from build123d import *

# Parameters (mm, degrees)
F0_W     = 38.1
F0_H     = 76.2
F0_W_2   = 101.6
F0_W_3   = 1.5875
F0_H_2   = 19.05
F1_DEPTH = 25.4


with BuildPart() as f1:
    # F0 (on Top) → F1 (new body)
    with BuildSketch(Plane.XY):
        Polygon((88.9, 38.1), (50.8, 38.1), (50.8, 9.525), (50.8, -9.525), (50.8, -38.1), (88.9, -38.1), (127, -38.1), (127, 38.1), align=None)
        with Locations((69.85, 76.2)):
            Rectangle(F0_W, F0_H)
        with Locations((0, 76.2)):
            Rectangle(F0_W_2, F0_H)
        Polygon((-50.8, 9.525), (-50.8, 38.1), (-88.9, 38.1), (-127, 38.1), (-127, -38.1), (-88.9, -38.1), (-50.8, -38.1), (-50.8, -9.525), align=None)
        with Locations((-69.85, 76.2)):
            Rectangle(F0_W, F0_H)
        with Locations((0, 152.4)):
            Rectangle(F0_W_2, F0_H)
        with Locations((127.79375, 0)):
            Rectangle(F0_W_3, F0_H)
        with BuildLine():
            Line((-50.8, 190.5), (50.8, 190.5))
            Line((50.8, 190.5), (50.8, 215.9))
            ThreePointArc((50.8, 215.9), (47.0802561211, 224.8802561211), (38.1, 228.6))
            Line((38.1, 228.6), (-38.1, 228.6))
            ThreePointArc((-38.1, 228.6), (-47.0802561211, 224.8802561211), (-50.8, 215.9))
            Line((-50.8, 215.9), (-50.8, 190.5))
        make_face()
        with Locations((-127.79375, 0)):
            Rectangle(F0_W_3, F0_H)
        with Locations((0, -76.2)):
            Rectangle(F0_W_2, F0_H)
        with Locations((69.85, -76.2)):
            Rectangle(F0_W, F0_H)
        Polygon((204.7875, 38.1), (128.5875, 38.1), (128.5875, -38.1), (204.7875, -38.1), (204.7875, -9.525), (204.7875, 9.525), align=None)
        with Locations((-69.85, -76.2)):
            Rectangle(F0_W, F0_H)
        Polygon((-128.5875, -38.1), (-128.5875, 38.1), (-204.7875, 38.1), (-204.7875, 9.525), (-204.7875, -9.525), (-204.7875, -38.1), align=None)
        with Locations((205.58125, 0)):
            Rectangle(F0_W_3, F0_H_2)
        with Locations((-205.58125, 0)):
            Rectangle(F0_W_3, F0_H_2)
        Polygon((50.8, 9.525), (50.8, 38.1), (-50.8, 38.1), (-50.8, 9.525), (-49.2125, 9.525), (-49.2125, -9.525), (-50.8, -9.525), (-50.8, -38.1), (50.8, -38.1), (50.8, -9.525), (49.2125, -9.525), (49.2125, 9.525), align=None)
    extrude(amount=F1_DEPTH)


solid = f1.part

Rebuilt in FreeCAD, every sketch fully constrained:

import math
import FreeCAD as App
import Part
import Sketcher

V = App.Vector
Q = App.Units.Quantity

doc = App.newDocument("Part")
body = doc.addObject("PartDesign::Body", "Body")

# Sketch on XY plane
sketch1 = doc.addObject("Sketcher::SketchObject", "Sketch")
body.addObject(sketch1)
sketch1.AttachmentSupport = (doc.XY_Plane, [""])
sketch1.MapMode = "FlatFace"
sketch1.addGeometry(Part.LineSegment(V(-88.9, -38.1, 0), V(-88.9, -114.3, 0)), False)
sketch1.addGeometry(Part.LineSegment(V(-88.9, -114.3, 0), V(88.9, -114.3, 0)), False)
sketch1.addGeometry(Part.LineSegment(V(88.9, -114.3, 0), V(88.9, -38.1, 0)), False)
sketch1.addGeometry(Part.LineSegment(V(88.9, -38.1, 0), V(204.8, -38.1, 0)), False)
sketch1.addGeometry(Part.LineSegment(V(204.8, -38.1, 0), V(204.8, -9.5, 0)), False)
sketch1.addGeometry(Part.LineSegment(V(204.8, -9.5, 0), V(206.4, -9.5, 0)), False)
sketch1.addGeometry(Part.LineSegment(V(206.4, -9.5, 0), V(206.4, 9.5, 0)), False)
sketch1.addGeometry(Part.LineSegment(V(206.4, 9.5, 0), V(204.8, 9.5, 0)), False)
sketch1.addGeometry(Part.LineSegment(V(204.8, 9.5, 0), V(204.8, 38.1, 0)), False)
sketch1.addGeometry(Part.LineSegment(V(204.8, 38.1, 0), V(88.9, 38.1, 0)), False)
sketch1.addGeometry(Part.LineSegment(V(88.9, 38.1, 0), V(88.9, 114.3, 0)), False)
sketch1.addGeometry(Part.LineSegment(V(88.9, 114.3, 0), V(50.8, 114.3, 0)), False)
sketch1.addGeometry(Part.LineSegment(V(50.8, 114.3, 0), V(50.8, 215.9, 0)), False)
sketch1.addGeometry(Part.ArcOfCircle(Part.Circle(V(38.1, 215.9, 0), V(0, 0, 1), 12.7), math.radians(0), math.radians(90)), False)
sketch1.addGeometry(Part.LineSegment(V(38.1, 228.6, 0), V(-38.1, 228.6, 0)), False)
sketch1.addGeometry(Part.ArcOfCircle(Part.Circle(V(-38.1, 215.9, 0), V(0, 0, 1), 12.7), math.radians(90), math.radians(180)), False)
sketch1.addGeometry(Part.LineSegment(V(-50.8, 215.9, 0), V(-50.8, 114.3, 0)), False)
sketch1.addGeometry(Part.LineSegment(V(-50.8, 114.3, 0), V(-88.9, 114.3, 0)), False)
sketch1.addGeometry(Part.LineSegment(V(-88.9, 114.3, 0), V(-88.9, 38.1, 0)), False)
sketch1.addGeometry(Part.LineSegment(V(-88.9, 38.1, 0), V(-204.8, 38.1, 0)), False)
sketch1.addGeometry(Part.LineSegment(V(-204.8, 38.1, 0), V(-204.8, 9.5, 0)), False)
sketch1.addGeometry(Part.LineSegment(V(-204.8, 9.5, 0), V(-206.4, 9.5, 0)), False)
sketch1.addGeometry(Part.LineSegment(V(-206.4, 9.5, 0), V(-206.4, -9.5, 0)), False)
sketch1.addGeometry(Part.LineSegment(V(-206.4, -9.5, 0), V(-204.8, -9.5, 0)), False)
sketch1.addGeometry(Part.LineSegment(V(-204.8, -9.5, 0), V(-204.8, -38.1, 0)), False)
sketch1.addGeometry(Part.LineSegment(V(-204.8, -38.1, 0), V(-88.9, -38.1, 0)), False)
sketch1.addGeometry(Part.LineSegment(V(-50.8, -9.5, 0), V(-50.8, 9.5, 0)), False)
sketch1.addGeometry(Part.LineSegment(V(-50.8, 9.5, 0), V(-49.2, 9.5, 0)), False)
sketch1.addGeometry(Part.LineSegment(V(-49.2, 9.5, 0), V(-49.2, -9.5, 0)), False)
sketch1.addGeometry(Part.LineSegment(V(-49.2, -9.5, 0), V(-50.8, -9.5, 0)), False)
sketch1.addGeometry(Part.LineSegment(V(50.8, 9.5, 0), V(50.8, -9.5, 0)), False)
sketch1.addGeometry(Part.LineSegment(V(50.8, -9.5, 0), V(49.2, -9.5, 0)), False)
sketch1.addGeometry(Part.LineSegment(V(49.2, -9.5, 0), V(49.2, 9.5, 0)), False)
sketch1.addGeometry(Part.LineSegment(V(49.2, 9.5, 0), V(50.8, 9.5, 0)), False)
sketch1.addConstraint(Sketcher.Constraint("Coincident", 0, 2, 1, 1))
sketch1.addConstraint(Sketcher.Constraint("Coincident", 1, 2, 2, 1))
sketch1.addConstraint(Sketcher.Constraint("Coincident", 2, 2, 3, 1))
sketch1.addConstraint(Sketcher.Constraint("Coincident", 3, 2, 4, 1))
sketch1.addConstraint(Sketcher.Constraint("Coincident", 4, 2, 5, 1))
sketch1.addConstraint(Sketcher.Constraint("Coincident", 5, 2, 6, 1))
sketch1.addConstraint(Sketcher.Constraint("Coincident", 6, 2, 7, 1))
sketch1.addConstraint(Sketcher.Constraint("Coincident", 7, 2, 8, 1))
sketch1.addConstraint(Sketcher.Constraint("Coincident", 8, 2, 9, 1))
sketch1.addConstraint(Sketcher.Constraint("Coincident", 9, 2, 10, 1))
sketch1.addConstraint(Sketcher.Constraint("Coincident", 10, 2, 11, 1))
sketch1.addConstraint(Sketcher.Constraint("Coincident", 11, 2, 12, 1))
sketch1.addConstraint(Sketcher.Constraint("Tangent", 12, 2, 13, 1))
sketch1.addConstraint(Sketcher.Constraint("Tangent", 13, 2, 14, 1))
sketch1.addConstraint(Sketcher.Constraint("Tangent", 14, 2, 15, 1))
sketch1.addConstraint(Sketcher.Constraint("Tangent", 15, 2, 16, 1))
sketch1.addConstraint(Sketcher.Constraint("Coincident", 16, 2, 17, 1))
sketch1.addConstraint(Sketcher.Constraint("Coincident", 17, 2, 18, 1))
sketch1.addConstraint(Sketcher.Constraint("Coincident", 18, 2, 19, 1))
sketch1.addConstraint(Sketcher.Constraint("Coincident", 19, 2, 20, 1))
sketch1.addConstraint(Sketcher.Constraint("Coincident", 20, 2, 21, 1))
sketch1.addConstraint(Sketcher.Constraint("Coincident", 21, 2, 22, 1))
sketch1.addConstraint(Sketcher.Constraint("Coincident", 22, 2, 23, 1))
sketch1.addConstraint(Sketcher.Constraint("Coincident", 23, 2, 24, 1))
sketch1.addConstraint(Sketcher.Constraint("Coincident", 24, 2, 25, 1))
sketch1.addConstraint(Sketcher.Constraint("Coincident", 25, 2, 0, 1))
sketch1.addConstraint(Sketcher.Constraint("Coincident", 26, 2, 27, 1))
sketch1.addConstraint(Sketcher.Constraint("Coincident", 27, 2, 28, 1))
sketch1.addConstraint(Sketcher.Constraint("Coincident", 28, 2, 29, 1))
sketch1.addConstraint(Sketcher.Constraint("Coincident", 29, 2, 26, 1))
sketch1.addConstraint(Sketcher.Constraint("Coincident", 30, 2, 31, 1))
sketch1.addConstraint(Sketcher.Constraint("Coincident", 31, 2, 32, 1))
sketch1.addConstraint(Sketcher.Constraint("Coincident", 32, 2, 33, 1))
sketch1.addConstraint(Sketcher.Constraint("Coincident", 33, 2, 30, 1))
sketch1.addConstraint(Sketcher.Constraint("Vertical", 0))
sketch1.addConstraint(Sketcher.Constraint("Horizontal", 1))
sketch1.addConstraint(Sketcher.Constraint("Vertical", 2))
sketch1.addConstraint(Sketcher.Constraint("Horizontal", 3))
sketch1.addConstraint(Sketcher.Constraint("Vertical", 4))
sketch1.addConstraint(Sketcher.Constraint("Horizontal", 5))
sketch1.addConstraint(Sketcher.Constraint("Vertical", 6))
sketch1.addConstraint(Sketcher.Constraint("Horizontal", 7))
sketch1.addConstraint(Sketcher.Constraint("Vertical", 8))
sketch1.addConstraint(Sketcher.Constraint("Horizontal", 9))
sketch1.addConstraint(Sketcher.Constraint("Vertical", 10))
sketch1.addConstraint(Sketcher.Constraint("Horizontal", 11))
sketch1.addConstraint(Sketcher.Constraint("Vertical", 12))
sketch1.addConstraint(Sketcher.Constraint("Horizontal", 14))
sketch1.addConstraint(Sketcher.Constraint("Vertical", 16))
sketch1.addConstraint(Sketcher.Constraint("Horizontal", 17))
sketch1.addConstraint(Sketcher.Constraint("Vertical", 18))
sketch1.addConstraint(Sketcher.Constraint("Horizontal", 19))
sketch1.addConstraint(Sketcher.Constraint("Vertical", 20))
sketch1.addConstraint(Sketcher.Constraint("Horizontal", 21))
sketch1.addConstraint(Sketcher.Constraint("Vertical", 22))
sketch1.addConstraint(Sketcher.Constraint("Horizontal", 23))
sketch1.addConstraint(Sketcher.Constraint("Vertical", 24))
sketch1.addConstraint(Sketcher.Constraint("Horizontal", 25))
sketch1.addConstraint(Sketcher.Constraint("Vertical", 26))
sketch1.addConstraint(Sketcher.Constraint("Horizontal", 27))
sketch1.addConstraint(Sketcher.Constraint("Vertical", 28))
sketch1.addConstraint(Sketcher.Constraint("Horizontal", 29))
sketch1.addConstraint(Sketcher.Constraint("Vertical", 30))
sketch1.addConstraint(Sketcher.Constraint("Horizontal", 31))
sketch1.addConstraint(Sketcher.Constraint("Vertical", 32))
sketch1.addConstraint(Sketcher.Constraint("Horizontal", 33))
sketch1.addConstraint(Sketcher.Constraint("Equal", 13, 15))
sketch1.addConstraint(Sketcher.Constraint("Symmetric", 0, 2, 10, 2, -1, 1))
sketch1.addConstraint(Sketcher.Constraint("Symmetric", 1, 2, 17, 2, -1, 1))
sketch1.addConstraint(Sketcher.Constraint("Symmetric", 3, 2, 19, 2, -1, 1))
sketch1.addConstraint(Sketcher.Constraint("Symmetric", 5, 2, 21, 2, -1, 1))
sketch1.addConstraint(Sketcher.Constraint("Symmetric", 7, 2, 23, 2, -1, 1))
sketch1.addConstraint(Sketcher.Constraint("Symmetric", 26, 2, 30, 2, -1, 1))
sketch1.addConstraint(Sketcher.Constraint("Symmetric", 28, 2, 32, 2, -1, 1))
sketch1.addConstraint(Sketcher.Constraint("Symmetric", 9, 2, 18, 2, -2))
sketch1.addConstraint(Sketcher.Constraint("Symmetric", 7, 2, 20, 2, -2))
sketch1.addConstraint(Sketcher.Constraint("Horizontal", 3, 2, 24, 2))
sketch1.addConstraint(Sketcher.Constraint("Horizontal", 21, 2, 26, 2))
sketch1.addConstraint(Sketcher.Constraint("Horizontal", 23, 2, 28, 2))
sketch1.addConstraint(Sketcher.Constraint("Vertical", 16, 2, 26, 2))
sketch1.addConstraint(Sketcher.Constraint("Vertical", 12, 2, 30, 2))
sketch1.addConstraint(Sketcher.Constraint("Equal", 23, 27))
sketch1.addConstraint(Sketcher.Constraint("Equal", 14, 0))
sketch1.addConstraint(Sketcher.Constraint("Radius", 13, Q("0.5 in")))
sketch1.addConstraint(Sketcher.Constraint("DistanceX", 1, 1, 1, 2, Q("7 in")))
sketch1.addConstraint(Sketcher.Constraint("DistanceX", 14, 2, 14, 1, Q("3 in")))
sketch1.addConstraint(Sketcher.Constraint("DistanceY", 12, 1, 12, 2, Q("4 in")))
sketch1.addConstraint(Sketcher.Constraint("DistanceY", -1, 1, 13, 2, Q("9 in")))
sketch1.addConstraint(Sketcher.Constraint("DistanceY", 6, 1, 6, 2, Q("0.75 in")))
sketch1.addConstraint(Sketcher.Constraint("DistanceX", 3, 1, 3, 2, Q("4.5625 in")))
sketch1.addConstraint(Sketcher.Constraint("DistanceX", 5, 1, 5, 2, Q("0.0625 in")))
pad1 = doc.addObject("PartDesign::Pad", "Pad")
body.addObject(pad1)
pad1.Profile = sketch1
pad1.Length = Q("1 in")

doc.recompute()
